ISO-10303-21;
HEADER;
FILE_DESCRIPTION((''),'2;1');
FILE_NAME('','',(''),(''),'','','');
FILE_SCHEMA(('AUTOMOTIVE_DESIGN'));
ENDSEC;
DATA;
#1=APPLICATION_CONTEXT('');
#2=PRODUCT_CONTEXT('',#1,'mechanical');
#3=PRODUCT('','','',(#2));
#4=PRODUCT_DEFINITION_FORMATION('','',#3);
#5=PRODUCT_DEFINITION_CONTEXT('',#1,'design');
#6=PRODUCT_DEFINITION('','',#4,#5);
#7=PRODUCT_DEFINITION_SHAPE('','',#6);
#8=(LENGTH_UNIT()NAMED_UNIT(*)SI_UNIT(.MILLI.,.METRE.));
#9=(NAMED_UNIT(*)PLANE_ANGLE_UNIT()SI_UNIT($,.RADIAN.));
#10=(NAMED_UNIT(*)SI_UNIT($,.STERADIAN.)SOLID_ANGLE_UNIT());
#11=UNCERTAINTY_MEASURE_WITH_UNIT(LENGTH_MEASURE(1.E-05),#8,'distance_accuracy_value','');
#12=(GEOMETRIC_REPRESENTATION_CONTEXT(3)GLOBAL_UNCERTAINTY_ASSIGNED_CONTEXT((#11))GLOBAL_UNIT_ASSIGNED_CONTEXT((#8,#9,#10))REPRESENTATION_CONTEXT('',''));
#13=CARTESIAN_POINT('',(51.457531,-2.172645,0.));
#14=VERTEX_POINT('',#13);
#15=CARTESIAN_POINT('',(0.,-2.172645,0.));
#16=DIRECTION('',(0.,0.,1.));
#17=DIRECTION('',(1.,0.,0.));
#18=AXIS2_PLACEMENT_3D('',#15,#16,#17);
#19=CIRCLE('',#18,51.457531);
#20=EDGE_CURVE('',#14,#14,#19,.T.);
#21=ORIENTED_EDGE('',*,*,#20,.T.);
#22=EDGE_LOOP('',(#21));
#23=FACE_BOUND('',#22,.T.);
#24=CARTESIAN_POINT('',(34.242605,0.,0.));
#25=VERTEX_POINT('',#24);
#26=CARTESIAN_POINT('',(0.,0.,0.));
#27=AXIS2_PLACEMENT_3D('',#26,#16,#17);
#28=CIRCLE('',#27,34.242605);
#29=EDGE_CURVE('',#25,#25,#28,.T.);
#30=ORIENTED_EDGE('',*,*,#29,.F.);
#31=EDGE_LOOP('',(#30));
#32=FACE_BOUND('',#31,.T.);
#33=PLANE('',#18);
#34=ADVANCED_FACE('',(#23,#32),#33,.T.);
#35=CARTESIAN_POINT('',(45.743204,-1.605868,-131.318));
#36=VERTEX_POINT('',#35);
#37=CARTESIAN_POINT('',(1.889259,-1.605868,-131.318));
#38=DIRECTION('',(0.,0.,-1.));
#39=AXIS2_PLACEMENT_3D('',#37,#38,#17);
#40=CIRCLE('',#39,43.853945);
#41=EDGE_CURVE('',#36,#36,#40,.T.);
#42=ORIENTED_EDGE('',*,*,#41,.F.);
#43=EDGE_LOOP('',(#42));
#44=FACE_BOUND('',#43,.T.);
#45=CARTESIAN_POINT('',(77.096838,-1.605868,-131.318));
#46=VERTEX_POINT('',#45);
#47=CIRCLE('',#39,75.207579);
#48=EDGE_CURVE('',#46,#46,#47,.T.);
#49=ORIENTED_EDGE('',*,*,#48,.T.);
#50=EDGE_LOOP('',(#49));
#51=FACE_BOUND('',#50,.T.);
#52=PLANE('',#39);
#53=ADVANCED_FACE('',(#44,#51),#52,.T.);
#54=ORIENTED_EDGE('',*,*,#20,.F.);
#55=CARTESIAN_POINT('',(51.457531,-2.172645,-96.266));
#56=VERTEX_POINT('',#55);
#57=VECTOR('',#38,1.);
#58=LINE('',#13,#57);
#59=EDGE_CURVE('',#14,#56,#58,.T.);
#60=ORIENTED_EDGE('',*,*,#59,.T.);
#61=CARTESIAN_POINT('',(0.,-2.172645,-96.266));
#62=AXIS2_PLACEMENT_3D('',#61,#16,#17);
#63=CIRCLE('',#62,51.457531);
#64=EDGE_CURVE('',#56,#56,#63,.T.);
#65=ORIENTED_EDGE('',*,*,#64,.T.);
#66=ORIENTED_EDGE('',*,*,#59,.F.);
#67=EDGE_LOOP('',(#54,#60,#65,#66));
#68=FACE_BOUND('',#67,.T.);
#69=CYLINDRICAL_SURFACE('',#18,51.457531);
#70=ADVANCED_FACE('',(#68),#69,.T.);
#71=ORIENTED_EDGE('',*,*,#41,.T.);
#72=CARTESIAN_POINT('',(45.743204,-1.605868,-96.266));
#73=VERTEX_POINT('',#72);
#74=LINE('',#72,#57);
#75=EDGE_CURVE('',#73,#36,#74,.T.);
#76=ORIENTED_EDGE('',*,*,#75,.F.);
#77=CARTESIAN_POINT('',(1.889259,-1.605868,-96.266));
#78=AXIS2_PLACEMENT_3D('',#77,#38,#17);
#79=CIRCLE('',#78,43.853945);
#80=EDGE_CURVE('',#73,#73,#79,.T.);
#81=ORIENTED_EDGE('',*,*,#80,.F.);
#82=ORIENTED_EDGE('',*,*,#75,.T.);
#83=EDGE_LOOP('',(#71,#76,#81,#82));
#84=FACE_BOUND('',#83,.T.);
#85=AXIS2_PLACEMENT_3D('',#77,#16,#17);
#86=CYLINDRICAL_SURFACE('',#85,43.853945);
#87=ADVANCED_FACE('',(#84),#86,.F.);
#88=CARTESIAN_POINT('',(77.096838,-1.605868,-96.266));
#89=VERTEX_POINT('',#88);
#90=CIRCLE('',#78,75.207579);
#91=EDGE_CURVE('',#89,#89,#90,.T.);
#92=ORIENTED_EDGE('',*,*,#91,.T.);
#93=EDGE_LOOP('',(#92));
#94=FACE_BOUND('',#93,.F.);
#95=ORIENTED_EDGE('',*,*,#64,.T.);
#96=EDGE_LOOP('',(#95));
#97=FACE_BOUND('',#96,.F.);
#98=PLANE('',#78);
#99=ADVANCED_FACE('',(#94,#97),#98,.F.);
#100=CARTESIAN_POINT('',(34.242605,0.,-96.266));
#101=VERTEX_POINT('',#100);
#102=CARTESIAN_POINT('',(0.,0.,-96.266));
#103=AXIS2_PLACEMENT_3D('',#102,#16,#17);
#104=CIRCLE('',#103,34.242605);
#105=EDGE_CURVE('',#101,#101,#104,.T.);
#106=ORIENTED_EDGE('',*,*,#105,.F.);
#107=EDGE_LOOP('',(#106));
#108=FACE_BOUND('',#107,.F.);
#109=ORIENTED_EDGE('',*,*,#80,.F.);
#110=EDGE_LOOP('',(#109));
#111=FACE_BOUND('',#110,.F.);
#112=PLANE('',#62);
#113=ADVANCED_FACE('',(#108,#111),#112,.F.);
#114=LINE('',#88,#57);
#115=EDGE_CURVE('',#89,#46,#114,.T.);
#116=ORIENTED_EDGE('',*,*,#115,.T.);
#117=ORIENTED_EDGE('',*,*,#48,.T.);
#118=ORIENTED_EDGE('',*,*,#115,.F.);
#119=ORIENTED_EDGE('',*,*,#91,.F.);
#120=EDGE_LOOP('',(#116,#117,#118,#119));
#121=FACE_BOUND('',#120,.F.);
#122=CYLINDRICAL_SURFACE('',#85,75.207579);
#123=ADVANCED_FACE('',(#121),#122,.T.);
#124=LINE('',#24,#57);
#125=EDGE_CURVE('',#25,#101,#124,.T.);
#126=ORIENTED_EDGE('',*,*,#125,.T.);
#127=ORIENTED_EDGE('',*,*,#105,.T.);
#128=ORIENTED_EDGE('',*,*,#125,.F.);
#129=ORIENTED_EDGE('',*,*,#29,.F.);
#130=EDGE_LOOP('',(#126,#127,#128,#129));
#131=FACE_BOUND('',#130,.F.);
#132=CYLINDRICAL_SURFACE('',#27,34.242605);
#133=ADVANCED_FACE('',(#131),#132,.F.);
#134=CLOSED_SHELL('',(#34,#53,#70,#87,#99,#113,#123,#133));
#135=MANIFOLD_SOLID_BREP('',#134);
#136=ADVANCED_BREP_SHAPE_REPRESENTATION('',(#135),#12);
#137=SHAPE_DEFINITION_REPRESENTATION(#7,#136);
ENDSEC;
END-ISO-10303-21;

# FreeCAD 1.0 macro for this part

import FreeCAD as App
import Part
import Sketcher
from FreeCAD import Vector
Q = App.Units.Quantity

doc = App.newDocument("Part")
body = doc.addObject("PartDesign::Body", "Body")

# Sketch on XY plane
sketch1 = body.newObject("Sketcher::SketchObject", "Sketch")
sketch1.AttachmentSupport = (doc.getObject("XY_Plane"), [""])
sketch1.MapMode = "FlatFace"
sketch1.addGeometry([
    Part.Circle(Vector(0, -2.172645, 0), Vector(0, 0, 1), 51.457531),
    Part.Circle(Vector(0, 0, 0), Vector(0, 0, 1), 34.242605),
], False)
sketch1.addConstraint([
    Sketcher.Constraint("Coincident", 1, 3, -1, 1),
    Sketcher.Constraint("PointOnObject", 0, 3, -2),
    Sketcher.Constraint("Diameter", 1, 68.48521),
    Sketcher.Constraint("Diameter", 0, 102.915062),
    Sketcher.Constraint("DistanceY", 0, 3, -1, 1, 2.172645),
])
pad1 = body.newObject("PartDesign::Pad", "Pad")
pad1.Profile = sketch1
pad1.Length = Q("3.79 in")
pad1.Reversed = True

# Sketch on XY plane
sketch2 = body.newObject("Sketcher::SketchObject", "Sketch001")
sketch2.AttachmentSupport = (doc.getObject("XY_Plane"), [""])
sketch2.MapMode = "FlatFace"
sketch2.AttachmentOffset = App.Placement(Vector(0, 0, -3.79 * 25.4), App.Rotation())
sketch2.addGeometry([
    Part.Circle(Vector(1.889259, -1.605868, 0), Vector(0, 0, 1), 75.207579),
    Part.Circle(Vector(1.889259, -1.605868, 0), Vector(0, 0, 1), 43.853945),
], False)
sketch2.addConstraint([
    Sketcher.Constraint("Coincident", 1, 3, 0, 3),
    Sketcher.Constraint("Diameter", 0, 150.415158),
    Sketcher.Constraint("Diameter", 1, 87.70789),
    Sketcher.Constraint("DistanceX", -1, 1, 0, 3, 1.889259),
    Sketcher.Constraint("DistanceY", 0, 3, -1, 1, 1.605868),
])
pad2 = body.newObject("PartDesign::Pad", "Pad001")
pad2.Profile = sketch2
pad2.Length = Q("1.38 in")
pad2.Reversed = True

doc.recompute()
